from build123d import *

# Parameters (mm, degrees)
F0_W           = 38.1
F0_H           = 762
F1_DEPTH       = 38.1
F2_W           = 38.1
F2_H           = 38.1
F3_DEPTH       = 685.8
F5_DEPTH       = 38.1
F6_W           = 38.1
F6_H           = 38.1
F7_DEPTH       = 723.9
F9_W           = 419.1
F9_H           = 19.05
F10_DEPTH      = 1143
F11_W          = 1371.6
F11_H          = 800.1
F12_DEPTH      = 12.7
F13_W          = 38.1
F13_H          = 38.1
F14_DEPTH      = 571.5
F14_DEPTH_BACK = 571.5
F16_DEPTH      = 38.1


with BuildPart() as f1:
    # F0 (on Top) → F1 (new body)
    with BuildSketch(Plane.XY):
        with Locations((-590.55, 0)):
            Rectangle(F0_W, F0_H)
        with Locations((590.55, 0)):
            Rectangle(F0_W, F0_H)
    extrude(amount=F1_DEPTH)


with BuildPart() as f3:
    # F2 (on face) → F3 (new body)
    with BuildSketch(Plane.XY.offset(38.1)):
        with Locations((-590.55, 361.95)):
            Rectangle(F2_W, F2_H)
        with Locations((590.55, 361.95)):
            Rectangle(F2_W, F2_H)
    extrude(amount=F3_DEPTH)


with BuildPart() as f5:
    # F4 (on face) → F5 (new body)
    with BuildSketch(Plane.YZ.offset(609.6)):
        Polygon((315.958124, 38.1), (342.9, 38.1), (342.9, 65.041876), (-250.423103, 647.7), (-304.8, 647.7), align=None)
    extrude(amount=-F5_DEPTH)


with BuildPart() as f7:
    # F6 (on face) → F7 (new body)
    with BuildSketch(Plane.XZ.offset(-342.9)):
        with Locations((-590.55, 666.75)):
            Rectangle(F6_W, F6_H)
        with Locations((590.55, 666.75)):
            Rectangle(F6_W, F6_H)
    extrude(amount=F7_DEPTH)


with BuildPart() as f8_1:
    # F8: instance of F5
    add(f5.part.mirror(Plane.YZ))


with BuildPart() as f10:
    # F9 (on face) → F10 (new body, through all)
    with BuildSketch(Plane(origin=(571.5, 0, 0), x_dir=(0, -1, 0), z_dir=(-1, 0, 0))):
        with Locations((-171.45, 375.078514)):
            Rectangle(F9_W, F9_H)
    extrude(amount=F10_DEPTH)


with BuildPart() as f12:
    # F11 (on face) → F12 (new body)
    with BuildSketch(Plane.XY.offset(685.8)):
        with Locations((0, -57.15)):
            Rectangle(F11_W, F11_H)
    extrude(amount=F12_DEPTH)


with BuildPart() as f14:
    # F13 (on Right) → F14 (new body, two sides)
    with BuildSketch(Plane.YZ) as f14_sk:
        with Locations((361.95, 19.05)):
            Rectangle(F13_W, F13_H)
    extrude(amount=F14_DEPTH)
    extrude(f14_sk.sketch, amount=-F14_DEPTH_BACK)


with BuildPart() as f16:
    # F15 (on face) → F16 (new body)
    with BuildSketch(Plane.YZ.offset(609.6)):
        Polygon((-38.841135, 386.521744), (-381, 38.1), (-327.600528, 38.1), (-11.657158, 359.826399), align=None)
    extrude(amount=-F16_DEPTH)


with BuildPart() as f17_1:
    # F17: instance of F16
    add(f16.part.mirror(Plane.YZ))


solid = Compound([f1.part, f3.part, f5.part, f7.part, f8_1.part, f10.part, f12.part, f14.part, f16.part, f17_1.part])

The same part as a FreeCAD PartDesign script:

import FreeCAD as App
import Part
import Sketcher
Q = App.Units.Quantity

doc = App.newDocument("Part")
body = doc.addObject("PartDesign::Body", "Body")
body.AllowCompound = True

# Sketch on XY plane
sketch1 = doc.addObject("Sketcher::SketchObject", "Sketch")
body.addObject(sketch1)
sketch1.AttachmentSupport = (doc.XY_Plane, [""])
sketch1.MapMode = "FlatFace"
sketch1.addGeometry(Part.LineSegment(App.Vector(-610, 381, 0), App.Vector(-610, -381, 0)), False)
sketch1.addGeometry(Part.LineSegment(App.Vector(-610, -381, 0), App.Vector(-572, -381, 0)), False)
sketch1.addGeometry(Part.LineSegment(App.Vector(-572, -381, 0), App.Vector(-572, 381, 0)), False)
sketch1.addGeometry(Part.LineSegment(App.Vector(-572, 381, 0), App.Vector(-610, 381, 0)), False)
sketch1.addGeometry(Part.LineSegment(App.Vector(572, 381, 0), App.Vector(572, -381, 0)), False)
sketch1.addGeometry(Part.LineSegment(App.Vector(572, -381, 0), App.Vector(610, -381, 0)), False)
sketch1.addGeometry(Part.LineSegment(App.Vector(610, -381, 0), App.Vector(610, 381, 0)), False)
sketch1.addGeometry(Part.LineSegment(App.Vector(610, 381, 0), App.Vector(572, 381, 0)), False)
sketch1.addConstraint(Sketcher.Constraint("Coincident", 0, 2, 1, 1))
sketch1.addConstraint(Sketcher.Constraint("Coincident", 1, 2, 2, 1))
sketch1.addConstraint(Sketcher.Constraint("Coincident", 2, 2, 3, 1))
sketch1.addConstraint(Sketcher.Constraint("Coincident", 3, 2, 0, 1))
sketch1.addConstraint(Sketcher.Constraint("Coincident", 4, 2, 5, 1))
sketch1.addConstraint(Sketcher.Constraint("Coincident", 5, 2, 6, 1))
sketch1.addConstraint(Sketcher.Constraint("Coincident", 6, 2, 7, 1))
sketch1.addConstraint(Sketcher.Constraint("Coincident", 7, 2, 4, 1))
sketch1.addConstraint(Sketcher.Constraint("Vertical", 0))
sketch1.addConstraint(Sketcher.Constraint("Horizontal", 1))
sketch1.addConstraint(Sketcher.Constraint("Vertical", 2))
sketch1.addConstraint(Sketcher.Constraint("Horizontal", 3))
sketch1.addConstraint(Sketcher.Constraint("Vertical", 4))
sketch1.addConstraint(Sketcher.Constraint("Horizontal", 5))
sketch1.addConstraint(Sketcher.Constraint("Vertical", 6))
sketch1.addConstraint(Sketcher.Constraint("Horizontal", 7))
sketch1.addConstraint(Sketcher.Constraint("Symmetric", 2, 2, 4, 2, -1, 1))
sketch1.addConstraint(Sketcher.Constraint("Symmetric", 0, 2, 6, 2, -1, 1))
sketch1.addConstraint(Sketcher.Constraint("Horizontal", 1, 2, 4, 2))
sketch1.addConstraint(Sketcher.Constraint("DistanceY", 0, 2, 0, 1, Q("30 in")))
sketch1.addConstraint(Sketcher.Constraint("DistanceX", 1, 1, 1, 2, Q("1.5 in")))
sketch1.addConstraint(Sketcher.Constraint("DistanceX", 0, 2, -1, 1, Q("24 in")))
pad1 = doc.addObject("PartDesign::Pad", "Pad")
body.addObject(pad1)
pad1.Profile = sketch1
pad1.Length = Q("1.5 in")
body2 = doc.addObject("PartDesign::Body", "Body001")
body2.AllowCompound = True

# Sketch on XY plane
sketch2 = doc.addObject("Sketcher::SketchObject", "Sketch001")
body2.addObject(sketch2)
sketch2.AttachmentSupport = (doc.getObject("XY_Plane001"), [""])
sketch2.MapMode = "FlatFace"
sketch2.AttachmentOffset = App.Placement(App.Vector(0, 0, 1.5 * 25.4), App.Rotation())
sketch2.addGeometry(Part.LineSegment(App.Vector(-610, 381, 0), App.Vector(-610, 343, 0)), False)
sketch2.addGeometry(Part.LineSegment(App.Vector(-610, 343, 0), App.Vector(-572, 343, 0)), False)
sketch2.addGeometry(Part.LineSegment(App.Vector(-572, 343, 0), App.Vector(-572, 381, 0)), False)
sketch2.addGeometry(Part.LineSegment(App.Vector(-572, 381, 0), App.Vector(-610, 381, 0)), False)
sketch2.addGeometry(Part.LineSegment(App.Vector(572, 381, 0), App.Vector(572, 343, 0)), False)
sketch2.addGeometry(Part.LineSegment(App.Vector(572, 343, 0), App.Vector(610, 343, 0)), False)
sketch2.addGeometry(Part.LineSegment(App.Vector(610, 343, 0), App.Vector(610, 381, 0)), False)
sketch2.addGeometry(Part.LineSegment(App.Vector(610, 381, 0), App.Vector(572, 381, 0)), False)
sketch2.addConstraint(Sketcher.Constraint("Coincident", 0, 2, 1, 1))
sketch2.addConstraint(Sketcher.Constraint("Coincident", 1, 2, 2, 1))
sketch2.addConstraint(Sketcher.Constraint("Coincident", 2, 2, 3, 1))
sketch2.addConstraint(Sketcher.Constraint("Coincident", 3, 2, 0, 1))
sketch2.addConstraint(Sketcher.Constraint("Coincident", 4, 2, 5, 1))
sketch2.addConstraint(Sketcher.Constraint("Coincident", 5, 2, 6, 1))
sketch2.addConstraint(Sketcher.Constraint("Coincident", 6, 2, 7, 1))
sketch2.addConstraint(Sketcher.Constraint("Coincident", 7, 2, 4, 1))
sketch2.addConstraint(Sketcher.Constraint("Vertical", 0))
sketch2.addConstraint(Sketcher.Constraint("Horizontal", 1))
sketch2.addConstraint(Sketcher.Constraint("Vertical", 2))
sketch2.addConstraint(Sketcher.Constraint("Horizontal", 3))
sketch2.addConstraint(Sketcher.Constraint("Vertical", 4))
sketch2.addConstraint(Sketcher.Constraint("Horizontal", 5))
sketch2.addConstraint(Sketcher.Constraint("Vertical", 6))
sketch2.addConstraint(Sketcher.Constraint("Horizontal", 7))
sketch2.addConstraint(Sketcher.Constraint("Symmetric", 1, 2, 4, 2, -2))
sketch2.addConstraint(Sketcher.Constraint("Symmetric", 3, 2, 6, 2, -2))
sketch2.addConstraint(Sketcher.Constraint("Equal", 7, 0))
sketch2.addConstraint(Sketcher.Constraint("DistanceX", 1, 1, 1, 2, Q("1.5 in")))
sketch2.addConstraint(Sketcher.Constraint("DistanceX", 0, 2, -1, 1, Q("24 in")))
sketch2.addConstraint(Sketcher.Constraint("DistanceY", -1, 1, 2, 2, Q("15 in")))
pad2 = doc.addObject("PartDesign::Pad", "Pad001")
body2.addObject(pad2)
pad2.Profile = sketch2
pad2.Length = Q("27 in")
body3 = doc.addObject("PartDesign::Body", "Body002")

# Sketch on YZ plane
sketch3 = doc.addObject("Sketcher::SketchObject", "Sketch002")
body3.addObject(sketch3)
sketch3.AttachmentSupport = (doc.getObject("YZ_Plane002"), [""])
sketch3.MapMode = "FlatFace"
sketch3.AttachmentOffset = App.Placement(App.Vector(0, 0, 24 * 25.4), App.Rotation())
sketch3.addGeometry(Part.LineSegment(App.Vector(316, 38, 0), App.Vector(343, 38, 0)), False)
sketch3.addGeometry(Part.LineSegment(App.Vector(343, 38, 0), App.Vector(343, 65, 0)), False)
sketch3.addGeometry(Part.LineSegment(App.Vector(343, 65, 0), App.Vector(-250, 648, 0)), False)
sketch3.addGeometry(Part.LineSegment(App.Vector(-250, 648, 0), App.Vector(-305, 648, 0)), False)
sketch3.addGeometry(Part.LineSegment(App.Vector(-305, 648, 0), App.Vector(316, 38, 0)), False)
sketch3.addConstraint(Sketcher.Constraint("Coincident", 0, 2, 1, 1))
sketch3.addConstraint(Sketcher.Constraint("Coincident", 1, 2, 2, 1))
sketch3.addConstraint(Sketcher.Constraint("Coincident", 2, 2, 3, 1))
sketch3.addConstraint(Sketcher.Constraint("Coincident", 3, 2, 4, 1))
sketch3.addConstraint(Sketcher.Constraint("Coincident", 4, 2, 0, 1))
sketch3.addConstraint(Sketcher.Constraint("Horizontal", 0))
sketch3.addConstraint(Sketcher.Constraint("Vertical", 1))
sketch3.addConstraint(Sketcher.Constraint("Horizontal", 3))
sketch3.addConstraint(Sketcher.Constraint("Parallel", 2, 4))
sketch3.addConstraint(Sketcher.Constraint("Equal", 0, 1))
sketch3.addConstraint(Sketcher.Constraint("DistanceX", 3, 2, -1, 1, Q("12 in")))
sketch3.addConstraint(Sketcher.Constraint("DistanceY", 0, 2, 2, 2, Q("24 in")))
sketch3.addConstraint(Sketcher.Constraint("DistanceX", -1, 1, 0, 2, Q("13.5 in")))
sketch3.addConstraint(Sketcher.Constraint("DistanceY", -1, 1, 0, 2, Q("1.5 in")))
sketch3.addConstraint(Sketcher.Constraint("Distance", 4, 870.030349))
pad3 = doc.addObject("PartDesign::Pad", "Pad002")
body3.addObject(pad3)
pad3.Profile = sketch3
pad3.Length = Q("1.5 in")
pad3.Reversed = True
body4 = doc.addObject("PartDesign::Body", "Body003")
body4.AllowCompound = True

# Sketch on XZ plane
sketch4 = doc.addObject("Sketcher::SketchObject", "Sketch003")
body4.addObject(sketch4)
sketch4.AttachmentSupport = (doc.getObject("XZ_Plane003"), [""])
sketch4.MapMode = "FlatFace"
sketch4.AttachmentOffset = App.Placement(App.Vector(0, 0, -13.5 * 25.4), App.Rotation())
sketch4.addGeometry(Part.LineSegment(App.Vector(-610, 686, 0), App.Vector(-610, 648, 0)), False)
sketch4.addGeometry(Part.LineSegment(App.Vector(-610, 648, 0), App.Vector(-572, 648, 0)), False)
sketch4.addGeometry(Part.LineSegment(App.Vector(-572, 648, 0), App.Vector(-572, 686, 0)), False)
sketch4.addGeometry(Part.LineSegment(App.Vector(-572, 686, 0), App.Vector(-610, 686, 0)), False)
sketch4.addGeometry(Part.LineSegment(App.Vector(572, 686, 0), App.Vector(572, 648, 0)), False)
sketch4.addGeometry(Part.LineSegment(App.Vector(572, 648, 0), App.Vector(610, 648, 0)), False)
sketch4.addGeometry(Part.LineSegment(App.Vector(610, 648, 0), App.Vector(610, 686, 0)), False)
sketch4.addGeometry(Part.LineSegment(App.Vector(610, 686, 0), App.Vector(572, 686, 0)), False)
sketch4.addConstraint(Sketcher.Constraint("Coincident", 0, 2, 1, 1))
sketch4.addConstraint(Sketcher.Constraint("Coincident", 1, 2, 2, 1))
sketch4.addConstraint(Sketcher.Constraint("Coincident", 2, 2, 3, 1))
sketch4.addConstraint(Sketcher.Constraint("Coincident", 3, 2, 0, 1))
sketch4.addConstraint(Sketcher.Constraint("Coincident", 4, 2, 5, 1))
sketch4.addConstraint(Sketcher.Constraint("Coincident", 5, 2, 6, 1))
sketch4.addConstraint(Sketcher.Constraint("Coincident", 6, 2, 7, 1))
sketch4.addConstraint(Sketcher.Constraint("Coincident", 7, 2, 4, 1))
sketch4.addConstraint(Sketcher.Constraint("Vertical", 0))
sketch4.addConstraint(Sketcher.Constraint("Horizontal", 1))
sketch4.addConstraint(Sketcher.Constraint("Vertical", 2))
sketch4.addConstraint(Sketcher.Constraint("Horizontal", 3))
sketch4.addConstraint(Sketcher.Constraint("Vertical", 4))
sketch4.addConstraint(Sketcher.Constraint("Horizontal", 5))
sketch4.addConstraint(Sketcher.Constraint("Vertical", 6))
sketch4.addConstraint(Sketcher.Constraint("Horizontal", 7))
sketch4.addConstraint(Sketcher.Constraint("Symmetric", 1, 2, 4, 2, -2))
sketch4.addConstraint(Sketcher.Constraint("Symmetric", 3, 2, 6, 2, -2))
sketch4.addConstraint(Sketcher.Constraint("Equal", 7, 0))
sketch4.addConstraint(Sketcher.Constraint("DistanceX", 1, 1, 1, 2, Q("1.5 in")))
sketch4.addConstraint(Sketcher.Constraint("DistanceX", 0, 2, -1, 1, Q("24 in")))
sketch4.addConstraint(Sketcher.Constraint("DistanceY", -1, 1, 2, 2, Q("27 in")))
pad4 = doc.addObject("PartDesign::Pad", "Pad003")
body4.addObject(pad4)
pad4.Profile = sketch4
pad4.Length = Q("28.5 in")
body5 = doc.addObject("PartDesign::Body", "Body004")
doc.recompute()

mirroring = doc.addObject("Part::Mirroring", "Mirroring")
mirroring.Source = body3
mirroring.Base = App.Vector(0, 0, 0)
mirroring.Normal = App.Vector(1, 0, 0)
body5.BaseFeature = mirroring
doc.recompute()
body6 = doc.addObject("PartDesign::Body", "Body005")

# Sketch on YZ plane
sketch5 = doc.addObject("Sketcher::SketchObject", "Sketch004")
body6.addObject(sketch5)
sketch5.AttachmentSupport = (doc.getObject("YZ_Plane005"), [""])
sketch5.MapMode = "FlatFace"
sketch5.AttachmentOffset = App.Placement(App.Vector(0, 0, 22.5 * 25.4), App.Rotation())
sketch5.addGeometry(Part.LineSegment(App.Vector(381, 385, 0), App.Vector(381, 366, 0)), False)
sketch5.addGeometry(Part.LineSegment(App.Vector(381, 366, 0), App.Vector(-38, 366, 0)), False)
sketch5.addGeometry(Part.LineSegment(App.Vector(-38, 366, 0), App.Vector(-38, 385, 0)), False)
sketch5.addGeometry(Part.LineSegment(App.Vector(-38, 385, 0), App.Vector(381, 385, 0)), False)
sketch5.addConstraint(Sketcher.Constraint("Coincident", 0, 2, 1, 1))
sketch5.addConstraint(Sketcher.Constraint("Coincident", 1, 2, 2, 1))
sketch5.addConstraint(Sketcher.Constraint("Coincident", 2, 2, 3, 1))
sketch5.addConstraint(Sketcher.Constraint("Coincident", 3, 2, 0, 1))
sketch5.addConstraint(Sketcher.Constraint("Vertical", 0))
sketch5.addConstraint(Sketcher.Constraint("Horizontal", 1))
sketch5.addConstraint(Sketcher.Constraint("Vertical", 2))
sketch5.addConstraint(Sketcher.Constraint("Horizontal", 3))
sketch5.addConstraint(Sketcher.Constraint("DistanceX", 1, 2, 1, 1, Q("16.5 in")))
sketch5.addConstraint(Sketcher.Constraint("DistanceX", -1, 1, 0, 2, Q("15 in")))
sketch5.addConstraint(Sketcher.Constraint("DistanceY", 0, 2, 0, 1, Q("0.75 in")))
sketch5.addConstraint(Sketcher.Constraint("DistanceY", -1, 1, 0, 2, 365.553514))
pad5 = doc.addObject("PartDesign::Pad", "Pad004")
body6.addObject(pad5)
pad5.Profile = sketch5
pad5.Length = Q("45 in")
pad5.Reversed = True
body7 = doc.addObject("PartDesign::Body", "Body006")

# Sketch on XY plane
sketch6 = doc.addObject("Sketcher::SketchObject", "Sketch005")
body7.addObject(sketch6)
sketch6.AttachmentSupport = (doc.getObject("XY_Plane006"), [""])
sketch6.MapMode = "FlatFace"
sketch6.AttachmentOffset = App.Placement(App.Vector(0, 0, 27 * 25.4), App.Rotation())
sketch6.addGeometry(Part.LineSegment(App.Vector(-686, 343, 0), App.Vector(-686, -457, 0)), False)
sketch6.addGeometry(Part.LineSegment(App.Vector(-686, -457, 0), App.Vector(686, -457, 0)), False)
sketch6.addGeometry(Part.LineSegment(App.Vector(686, -457, 0), App.Vector(686, 343, 0)), False)
sketch6.addGeometry(Part.LineSegment(App.Vector(686, 343, 0), App.Vector(-686, 343, 0)), False)
sketch6.addConstraint(Sketcher.Constraint("Coincident", 0, 2, 1, 1))
sketch6.addConstraint(Sketcher.Constraint("Coincident", 1, 2, 2, 1))
sketch6.addConstraint(Sketcher.Constraint("Coincident", 2, 2, 3, 1))
sketch6.addConstraint(Sketcher.Constraint("Coincident", 3, 2, 0, 1))
sketch6.addConstraint(Sketcher.Constraint("Vertical", 0))
sketch6.addConstraint(Sketcher.Constraint("Horizontal", 1))
sketch6.addConstraint(Sketcher.Constraint("Vertical", 2))
sketch6.addConstraint(Sketcher.Constraint("Horizontal", 3))
sketch6.addConstraint(Sketcher.Constraint("DistanceX", 1, 1, 1, 2, Q("54 in")))
sketch6.addConstraint(Sketcher.Constraint("DistanceY", 0, 2, 0, 1, Q("31.5 in")))
sketch6.addConstraint(Sketcher.Constraint("DistanceX", 0, 2, -1, 1, Q("27 in")))
sketch6.addConstraint(Sketcher.Constraint("DistanceY", 0, 2, -1, 1, Q("18 in")))
pad6 = doc.addObject("PartDesign::Pad", "Pad005")
body7.addObject(pad6)
pad6.Profile = sketch6
pad6.Length = Q("0.5 in")
body8 = doc.addObject("PartDesign::Body", "Body007")

# Sketch on YZ plane
sketch7 = doc.addObject("Sketcher::SketchObject", "Sketch006")
body8.addObject(sketch7)
sketch7.AttachmentSupport = (doc.getObject("YZ_Plane007"), [""])
sketch7.MapMode = "FlatFace"
sketch7.addGeometry(Part.LineSegment(App.Vector(343, 38, 0), App.Vector(343, 0, 0)), False)
sketch7.addGeometry(Part.LineSegment(App.Vector(343, 0, 0), App.Vector(381, 0, 0)), False)
sketch7.addGeometry(Part.LineSegment(App.Vector(381, 0, 0), App.Vector(381, 38, 0)), False)
sketch7.addGeometry(Part.LineSegment(App.Vector(381, 38, 0), App.Vector(343, 38, 0)), False)
sketch7.addConstraint(Sketcher.Constraint("Coincident", 0, 2, 1, 1))
sketch7.addConstraint(Sketcher.Constraint("Coincident", 1, 2, 2, 1))
sketch7.addConstraint(Sketcher.Constraint("Coincident", 2, 2, 3, 1))
sketch7.addConstraint(Sketcher.Constraint("Coincident", 3, 2, 0, 1))
sketch7.addConstraint(Sketcher.Constraint("Vertical", 0))
sketch7.addConstraint(Sketcher.Constraint("Horizontal", 1))
sketch7.addConstraint(Sketcher.Constraint("Vertical", 2))
sketch7.addConstraint(Sketcher.Constraint("Horizontal", 3))
sketch7.addConstraint(Sketcher.Constraint("PointOnObject", 0, 2, -1))
sketch7.addConstraint(Sketcher.Constraint("Equal", 3, 0))
sketch7.addConstraint(Sketcher.Constraint("DistanceX", 1, 1, 1, 2, Q("1.5 in")))
sketch7.addConstraint(Sketcher.Constraint("DistanceX", -1, 1, 1, 2, Q("15 in")))
pad7 = doc.addObject("PartDesign::Pad", "Pad006")
body8.addObject(pad7)
pad7.Profile = sketch7
pad7.Type = "TwoLengths"
pad7.Length = Q("22.5 in")
pad7.Length2 = Q("22.5 in")
body9 = doc.addObject("PartDesign::Body", "Body008")

# Sketch on YZ plane
sketch8 = doc.addObject("Sketcher::SketchObject", "Sketch007")
body9.addObject(sketch8)
sketch8.AttachmentSupport = (doc.getObject("YZ_Plane008"), [""])
sketch8.MapMode = "FlatFace"
sketch8.AttachmentOffset = App.Placement(App.Vector(0, 0, 24 * 25.4), App.Rotation())
sketch8.addGeometry(Part.LineSegment(App.Vector(-39, 387, 0), App.Vector(-381, 38, 0)), False)
sketch8.addGeometry(Part.LineSegment(App.Vector(-381, 38, 0), App.Vector(-328, 38, 0)), False)
sketch8.addGeometry(Part.LineSegment(App.Vector(-328, 38, 0), App.Vector(-12, 360, 0)), False)
sketch8.addGeometry(Part.LineSegment(App.Vector(-12, 360, 0), App.Vector(-39, 387, 0)), False)
sketch8.addConstraint(Sketcher.Constraint("Coincident", 0, 2, 1, 1))
sketch8.addConstraint(Sketcher.Constraint("Coincident", 1, 2, 2, 1))
sketch8.addConstraint(Sketcher.Constraint("Coincident", 2, 2, 3, 1))
sketch8.addConstraint(Sketcher.Constraint("Coincident", 3, 2, 0, 1))
sketch8.addConstraint(Sketcher.Constraint("Horizontal", 1))
sketch8.addConstraint(Sketcher.Constraint("Parallel", 0, 2))
sketch8.addConstraint(Sketcher.Constraint("Perpendicular", 2, 3))
sketch8.addConstraint(Sketcher.Constraint("DistanceX", 0, 2, -1, 1, Q("15 in")))
sketch8.addConstraint(Sketcher.Constraint("Distance", 3, Q("1.5 in")))
sketch8.addConstraint(Sketcher.Constraint("DistanceY", -1, 1, 0, 2, Q("1.5 in")))
sketch8.addConstraint(Sketcher.Constraint("DistanceY", -1, 1, 2, 2, 359.826399))
sketch8.addConstraint(Sketcher.Constraint("Distance", 2, 450.91916))
pad8 = doc.addObject("PartDesign::Pad", "Pad007")
body9.addObject(pad8)
pad8.Profile = sketch8
pad8.Length = Q("1.5 in")
pad8.Reversed = True
body10 = doc.addObject("PartDesign::Body", "Body009")
doc.recompute()

mirroring2 = doc.addObject("Part::Mirroring", "Mirroring001")
mirroring2.Source = body9
mirroring2.Base = App.Vector(0, 0, 0)
mirroring2.Normal = App.Vector(1, 0, 0)
body10.BaseFeature = mirroring2
doc.recompute()
mirroring.Visibility = False
mirroring2.Visibility = False

doc.recompute()
